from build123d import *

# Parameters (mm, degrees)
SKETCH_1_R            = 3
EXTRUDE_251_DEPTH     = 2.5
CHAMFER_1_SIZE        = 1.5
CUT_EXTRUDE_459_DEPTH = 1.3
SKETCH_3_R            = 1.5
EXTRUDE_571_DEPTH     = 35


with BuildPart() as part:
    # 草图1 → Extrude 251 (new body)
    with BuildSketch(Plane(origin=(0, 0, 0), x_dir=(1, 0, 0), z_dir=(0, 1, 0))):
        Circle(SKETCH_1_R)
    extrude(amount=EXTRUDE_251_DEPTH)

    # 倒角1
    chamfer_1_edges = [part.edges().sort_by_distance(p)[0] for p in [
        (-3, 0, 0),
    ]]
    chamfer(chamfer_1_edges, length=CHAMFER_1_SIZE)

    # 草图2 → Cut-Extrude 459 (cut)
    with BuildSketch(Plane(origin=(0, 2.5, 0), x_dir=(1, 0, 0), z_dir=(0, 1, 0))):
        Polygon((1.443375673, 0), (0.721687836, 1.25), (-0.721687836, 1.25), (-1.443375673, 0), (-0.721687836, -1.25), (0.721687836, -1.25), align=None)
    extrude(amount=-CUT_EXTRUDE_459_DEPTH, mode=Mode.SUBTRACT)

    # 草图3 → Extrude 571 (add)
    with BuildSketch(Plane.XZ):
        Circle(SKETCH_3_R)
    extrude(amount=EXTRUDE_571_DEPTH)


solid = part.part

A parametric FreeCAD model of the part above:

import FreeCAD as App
import Part
import Sketcher

V = App.Vector
Q = App.Units.Quantity


def edges_at(feature, points):
    """Names of the edges that pass closest to the given points."""
    edges = feature.Shape.Edges
    near = lambda p: min(range(len(edges)), key=lambda i: edges[i].distToShape(Part.Vertex(*p))[0])
    return sorted({f"Edge{near(p) + 1}" for p in points})

doc = App.newDocument("Part")
body = doc.addObject("PartDesign::Body", "Body")

sketch1 = doc.addObject("Sketcher::SketchObject", "Sketch")
body.addObject(sketch1)
sketch1.AttachmentSupport = (doc.XZ_Plane, [""])
sketch1.MapMode = "FlatFace"
sketch1.addGeometry(Part.Circle(V(0, 0, 0), V(0, 0, 1), 3), False)
sketch1.addConstraint([
    Sketcher.Constraint("Coincident", 0, 3, -1, 1),
    Sketcher.Constraint("Diameter", 0, Q("6 mm")),
])
pad1 = doc.addObject("PartDesign::Pad", "Pad")
body.addObject(pad1)
pad1.Profile = sketch1
pad1.Length = 2.5
pad1.Reversed = True
doc.recompute()

chamfer = doc.addObject("PartDesign::Chamfer", "Chamfer")
body.addObject(chamfer)
chamfer.Base = (pad1, edges_at(pad1, [(-3, 0, 0)]))
chamfer.Size = 1.5

sketch2 = doc.addObject("Sketcher::SketchObject", "Sketch001")
body.addObject(sketch2)
sketch2.AttachmentSupport = (doc.XZ_Plane, [""])
sketch2.MapMode = "FlatFace"
sketch2.AttachmentOffset = App.Placement(V(0, 0, -2.5), App.Rotation())
sketch2.addGeometry([
    Part.LineSegment(V(1.443376, 0, 0), V(0.721688, -1.25, 0)),
    Part.LineSegment(V(0.721688, -1.25, 0), V(-0.721688, -1.25, 0)),
    Part.LineSegment(V(-0.721688, -1.25, 0), V(-1.443376, 0, 0)),
    Part.LineSegment(V(-1.443376, 0, 0), V(-0.721688, 1.25, 0)),
    Part.LineSegment(V(-0.721688, 1.25, 0), V(0.721688, 1.25, 0)),
    Part.LineSegment(V(0.721688, 1.25, 0), V(1.443376, 0, 0)),
], False)
sketch2.addConstraint([
    Sketcher.Constraint("Coincident", 0, 2, 1, 1),
    Sketcher.Constraint("Coincident", 1, 2, 2, 1),
    Sketcher.Constraint("Coincident", 2, 2, 3, 1),
    Sketcher.Constraint("Coincident", 3, 2, 4, 1),
    Sketcher.Constraint("Coincident", 4, 2, 5, 1),
    Sketcher.Constraint("Coincident", 5, 2, 0, 1),
    Sketcher.Constraint("Horizontal", 1),
    Sketcher.Constraint("Horizontal", 4),
    Sketcher.Constraint("Symmetric", 0, 2, 3, 2, -1, 1),
    Sketcher.Constraint("Symmetric", 2, 2, 5, 2, -1, 1),
    Sketcher.Constraint("PointOnObject", 2, 2, -1),
    Sketcher.Constraint("Parallel", 2, 5),
    Sketcher.Constraint("Vertical", 1, 2, 3, 2),
    Sketcher.Constraint("Angle", 0, Q("-120 deg")),
    Sketcher.Constraint("DistanceY", 1, 2, 3, 2, Q("2.5 mm")),
    Sketcher.Constraint("DistanceX", 1, 2, 1, 1, Q("1.443376 mm")),
])
pocket1 = doc.addObject("PartDesign::Pocket", "Pocket")
body.addObject(pocket1)
pocket1.Profile = sketch2
pocket1.Length = 1.3
pocket1.Reversed = True

sketch3 = doc.addObject("Sketcher::SketchObject", "Sketch002")
body.addObject(sketch3)
sketch3.AttachmentSupport = (doc.XZ_Plane, [""])
sketch3.MapMode = "FlatFace"
sketch3.addGeometry(Part.Circle(V(0, 0, 0), V(0, 0, 1), 1.5), False)
sketch3.addConstraint([
    Sketcher.Constraint("Coincident", 0, 3, -1, 1),
    Sketcher.Constraint("Diameter", 0, Q("3 mm")),
])
pad2 = doc.addObject("PartDesign::Pad", "Pad001")
body.addObject(pad2)
pad2.Profile = sketch3
pad2.Length = 35

doc.recompute()
